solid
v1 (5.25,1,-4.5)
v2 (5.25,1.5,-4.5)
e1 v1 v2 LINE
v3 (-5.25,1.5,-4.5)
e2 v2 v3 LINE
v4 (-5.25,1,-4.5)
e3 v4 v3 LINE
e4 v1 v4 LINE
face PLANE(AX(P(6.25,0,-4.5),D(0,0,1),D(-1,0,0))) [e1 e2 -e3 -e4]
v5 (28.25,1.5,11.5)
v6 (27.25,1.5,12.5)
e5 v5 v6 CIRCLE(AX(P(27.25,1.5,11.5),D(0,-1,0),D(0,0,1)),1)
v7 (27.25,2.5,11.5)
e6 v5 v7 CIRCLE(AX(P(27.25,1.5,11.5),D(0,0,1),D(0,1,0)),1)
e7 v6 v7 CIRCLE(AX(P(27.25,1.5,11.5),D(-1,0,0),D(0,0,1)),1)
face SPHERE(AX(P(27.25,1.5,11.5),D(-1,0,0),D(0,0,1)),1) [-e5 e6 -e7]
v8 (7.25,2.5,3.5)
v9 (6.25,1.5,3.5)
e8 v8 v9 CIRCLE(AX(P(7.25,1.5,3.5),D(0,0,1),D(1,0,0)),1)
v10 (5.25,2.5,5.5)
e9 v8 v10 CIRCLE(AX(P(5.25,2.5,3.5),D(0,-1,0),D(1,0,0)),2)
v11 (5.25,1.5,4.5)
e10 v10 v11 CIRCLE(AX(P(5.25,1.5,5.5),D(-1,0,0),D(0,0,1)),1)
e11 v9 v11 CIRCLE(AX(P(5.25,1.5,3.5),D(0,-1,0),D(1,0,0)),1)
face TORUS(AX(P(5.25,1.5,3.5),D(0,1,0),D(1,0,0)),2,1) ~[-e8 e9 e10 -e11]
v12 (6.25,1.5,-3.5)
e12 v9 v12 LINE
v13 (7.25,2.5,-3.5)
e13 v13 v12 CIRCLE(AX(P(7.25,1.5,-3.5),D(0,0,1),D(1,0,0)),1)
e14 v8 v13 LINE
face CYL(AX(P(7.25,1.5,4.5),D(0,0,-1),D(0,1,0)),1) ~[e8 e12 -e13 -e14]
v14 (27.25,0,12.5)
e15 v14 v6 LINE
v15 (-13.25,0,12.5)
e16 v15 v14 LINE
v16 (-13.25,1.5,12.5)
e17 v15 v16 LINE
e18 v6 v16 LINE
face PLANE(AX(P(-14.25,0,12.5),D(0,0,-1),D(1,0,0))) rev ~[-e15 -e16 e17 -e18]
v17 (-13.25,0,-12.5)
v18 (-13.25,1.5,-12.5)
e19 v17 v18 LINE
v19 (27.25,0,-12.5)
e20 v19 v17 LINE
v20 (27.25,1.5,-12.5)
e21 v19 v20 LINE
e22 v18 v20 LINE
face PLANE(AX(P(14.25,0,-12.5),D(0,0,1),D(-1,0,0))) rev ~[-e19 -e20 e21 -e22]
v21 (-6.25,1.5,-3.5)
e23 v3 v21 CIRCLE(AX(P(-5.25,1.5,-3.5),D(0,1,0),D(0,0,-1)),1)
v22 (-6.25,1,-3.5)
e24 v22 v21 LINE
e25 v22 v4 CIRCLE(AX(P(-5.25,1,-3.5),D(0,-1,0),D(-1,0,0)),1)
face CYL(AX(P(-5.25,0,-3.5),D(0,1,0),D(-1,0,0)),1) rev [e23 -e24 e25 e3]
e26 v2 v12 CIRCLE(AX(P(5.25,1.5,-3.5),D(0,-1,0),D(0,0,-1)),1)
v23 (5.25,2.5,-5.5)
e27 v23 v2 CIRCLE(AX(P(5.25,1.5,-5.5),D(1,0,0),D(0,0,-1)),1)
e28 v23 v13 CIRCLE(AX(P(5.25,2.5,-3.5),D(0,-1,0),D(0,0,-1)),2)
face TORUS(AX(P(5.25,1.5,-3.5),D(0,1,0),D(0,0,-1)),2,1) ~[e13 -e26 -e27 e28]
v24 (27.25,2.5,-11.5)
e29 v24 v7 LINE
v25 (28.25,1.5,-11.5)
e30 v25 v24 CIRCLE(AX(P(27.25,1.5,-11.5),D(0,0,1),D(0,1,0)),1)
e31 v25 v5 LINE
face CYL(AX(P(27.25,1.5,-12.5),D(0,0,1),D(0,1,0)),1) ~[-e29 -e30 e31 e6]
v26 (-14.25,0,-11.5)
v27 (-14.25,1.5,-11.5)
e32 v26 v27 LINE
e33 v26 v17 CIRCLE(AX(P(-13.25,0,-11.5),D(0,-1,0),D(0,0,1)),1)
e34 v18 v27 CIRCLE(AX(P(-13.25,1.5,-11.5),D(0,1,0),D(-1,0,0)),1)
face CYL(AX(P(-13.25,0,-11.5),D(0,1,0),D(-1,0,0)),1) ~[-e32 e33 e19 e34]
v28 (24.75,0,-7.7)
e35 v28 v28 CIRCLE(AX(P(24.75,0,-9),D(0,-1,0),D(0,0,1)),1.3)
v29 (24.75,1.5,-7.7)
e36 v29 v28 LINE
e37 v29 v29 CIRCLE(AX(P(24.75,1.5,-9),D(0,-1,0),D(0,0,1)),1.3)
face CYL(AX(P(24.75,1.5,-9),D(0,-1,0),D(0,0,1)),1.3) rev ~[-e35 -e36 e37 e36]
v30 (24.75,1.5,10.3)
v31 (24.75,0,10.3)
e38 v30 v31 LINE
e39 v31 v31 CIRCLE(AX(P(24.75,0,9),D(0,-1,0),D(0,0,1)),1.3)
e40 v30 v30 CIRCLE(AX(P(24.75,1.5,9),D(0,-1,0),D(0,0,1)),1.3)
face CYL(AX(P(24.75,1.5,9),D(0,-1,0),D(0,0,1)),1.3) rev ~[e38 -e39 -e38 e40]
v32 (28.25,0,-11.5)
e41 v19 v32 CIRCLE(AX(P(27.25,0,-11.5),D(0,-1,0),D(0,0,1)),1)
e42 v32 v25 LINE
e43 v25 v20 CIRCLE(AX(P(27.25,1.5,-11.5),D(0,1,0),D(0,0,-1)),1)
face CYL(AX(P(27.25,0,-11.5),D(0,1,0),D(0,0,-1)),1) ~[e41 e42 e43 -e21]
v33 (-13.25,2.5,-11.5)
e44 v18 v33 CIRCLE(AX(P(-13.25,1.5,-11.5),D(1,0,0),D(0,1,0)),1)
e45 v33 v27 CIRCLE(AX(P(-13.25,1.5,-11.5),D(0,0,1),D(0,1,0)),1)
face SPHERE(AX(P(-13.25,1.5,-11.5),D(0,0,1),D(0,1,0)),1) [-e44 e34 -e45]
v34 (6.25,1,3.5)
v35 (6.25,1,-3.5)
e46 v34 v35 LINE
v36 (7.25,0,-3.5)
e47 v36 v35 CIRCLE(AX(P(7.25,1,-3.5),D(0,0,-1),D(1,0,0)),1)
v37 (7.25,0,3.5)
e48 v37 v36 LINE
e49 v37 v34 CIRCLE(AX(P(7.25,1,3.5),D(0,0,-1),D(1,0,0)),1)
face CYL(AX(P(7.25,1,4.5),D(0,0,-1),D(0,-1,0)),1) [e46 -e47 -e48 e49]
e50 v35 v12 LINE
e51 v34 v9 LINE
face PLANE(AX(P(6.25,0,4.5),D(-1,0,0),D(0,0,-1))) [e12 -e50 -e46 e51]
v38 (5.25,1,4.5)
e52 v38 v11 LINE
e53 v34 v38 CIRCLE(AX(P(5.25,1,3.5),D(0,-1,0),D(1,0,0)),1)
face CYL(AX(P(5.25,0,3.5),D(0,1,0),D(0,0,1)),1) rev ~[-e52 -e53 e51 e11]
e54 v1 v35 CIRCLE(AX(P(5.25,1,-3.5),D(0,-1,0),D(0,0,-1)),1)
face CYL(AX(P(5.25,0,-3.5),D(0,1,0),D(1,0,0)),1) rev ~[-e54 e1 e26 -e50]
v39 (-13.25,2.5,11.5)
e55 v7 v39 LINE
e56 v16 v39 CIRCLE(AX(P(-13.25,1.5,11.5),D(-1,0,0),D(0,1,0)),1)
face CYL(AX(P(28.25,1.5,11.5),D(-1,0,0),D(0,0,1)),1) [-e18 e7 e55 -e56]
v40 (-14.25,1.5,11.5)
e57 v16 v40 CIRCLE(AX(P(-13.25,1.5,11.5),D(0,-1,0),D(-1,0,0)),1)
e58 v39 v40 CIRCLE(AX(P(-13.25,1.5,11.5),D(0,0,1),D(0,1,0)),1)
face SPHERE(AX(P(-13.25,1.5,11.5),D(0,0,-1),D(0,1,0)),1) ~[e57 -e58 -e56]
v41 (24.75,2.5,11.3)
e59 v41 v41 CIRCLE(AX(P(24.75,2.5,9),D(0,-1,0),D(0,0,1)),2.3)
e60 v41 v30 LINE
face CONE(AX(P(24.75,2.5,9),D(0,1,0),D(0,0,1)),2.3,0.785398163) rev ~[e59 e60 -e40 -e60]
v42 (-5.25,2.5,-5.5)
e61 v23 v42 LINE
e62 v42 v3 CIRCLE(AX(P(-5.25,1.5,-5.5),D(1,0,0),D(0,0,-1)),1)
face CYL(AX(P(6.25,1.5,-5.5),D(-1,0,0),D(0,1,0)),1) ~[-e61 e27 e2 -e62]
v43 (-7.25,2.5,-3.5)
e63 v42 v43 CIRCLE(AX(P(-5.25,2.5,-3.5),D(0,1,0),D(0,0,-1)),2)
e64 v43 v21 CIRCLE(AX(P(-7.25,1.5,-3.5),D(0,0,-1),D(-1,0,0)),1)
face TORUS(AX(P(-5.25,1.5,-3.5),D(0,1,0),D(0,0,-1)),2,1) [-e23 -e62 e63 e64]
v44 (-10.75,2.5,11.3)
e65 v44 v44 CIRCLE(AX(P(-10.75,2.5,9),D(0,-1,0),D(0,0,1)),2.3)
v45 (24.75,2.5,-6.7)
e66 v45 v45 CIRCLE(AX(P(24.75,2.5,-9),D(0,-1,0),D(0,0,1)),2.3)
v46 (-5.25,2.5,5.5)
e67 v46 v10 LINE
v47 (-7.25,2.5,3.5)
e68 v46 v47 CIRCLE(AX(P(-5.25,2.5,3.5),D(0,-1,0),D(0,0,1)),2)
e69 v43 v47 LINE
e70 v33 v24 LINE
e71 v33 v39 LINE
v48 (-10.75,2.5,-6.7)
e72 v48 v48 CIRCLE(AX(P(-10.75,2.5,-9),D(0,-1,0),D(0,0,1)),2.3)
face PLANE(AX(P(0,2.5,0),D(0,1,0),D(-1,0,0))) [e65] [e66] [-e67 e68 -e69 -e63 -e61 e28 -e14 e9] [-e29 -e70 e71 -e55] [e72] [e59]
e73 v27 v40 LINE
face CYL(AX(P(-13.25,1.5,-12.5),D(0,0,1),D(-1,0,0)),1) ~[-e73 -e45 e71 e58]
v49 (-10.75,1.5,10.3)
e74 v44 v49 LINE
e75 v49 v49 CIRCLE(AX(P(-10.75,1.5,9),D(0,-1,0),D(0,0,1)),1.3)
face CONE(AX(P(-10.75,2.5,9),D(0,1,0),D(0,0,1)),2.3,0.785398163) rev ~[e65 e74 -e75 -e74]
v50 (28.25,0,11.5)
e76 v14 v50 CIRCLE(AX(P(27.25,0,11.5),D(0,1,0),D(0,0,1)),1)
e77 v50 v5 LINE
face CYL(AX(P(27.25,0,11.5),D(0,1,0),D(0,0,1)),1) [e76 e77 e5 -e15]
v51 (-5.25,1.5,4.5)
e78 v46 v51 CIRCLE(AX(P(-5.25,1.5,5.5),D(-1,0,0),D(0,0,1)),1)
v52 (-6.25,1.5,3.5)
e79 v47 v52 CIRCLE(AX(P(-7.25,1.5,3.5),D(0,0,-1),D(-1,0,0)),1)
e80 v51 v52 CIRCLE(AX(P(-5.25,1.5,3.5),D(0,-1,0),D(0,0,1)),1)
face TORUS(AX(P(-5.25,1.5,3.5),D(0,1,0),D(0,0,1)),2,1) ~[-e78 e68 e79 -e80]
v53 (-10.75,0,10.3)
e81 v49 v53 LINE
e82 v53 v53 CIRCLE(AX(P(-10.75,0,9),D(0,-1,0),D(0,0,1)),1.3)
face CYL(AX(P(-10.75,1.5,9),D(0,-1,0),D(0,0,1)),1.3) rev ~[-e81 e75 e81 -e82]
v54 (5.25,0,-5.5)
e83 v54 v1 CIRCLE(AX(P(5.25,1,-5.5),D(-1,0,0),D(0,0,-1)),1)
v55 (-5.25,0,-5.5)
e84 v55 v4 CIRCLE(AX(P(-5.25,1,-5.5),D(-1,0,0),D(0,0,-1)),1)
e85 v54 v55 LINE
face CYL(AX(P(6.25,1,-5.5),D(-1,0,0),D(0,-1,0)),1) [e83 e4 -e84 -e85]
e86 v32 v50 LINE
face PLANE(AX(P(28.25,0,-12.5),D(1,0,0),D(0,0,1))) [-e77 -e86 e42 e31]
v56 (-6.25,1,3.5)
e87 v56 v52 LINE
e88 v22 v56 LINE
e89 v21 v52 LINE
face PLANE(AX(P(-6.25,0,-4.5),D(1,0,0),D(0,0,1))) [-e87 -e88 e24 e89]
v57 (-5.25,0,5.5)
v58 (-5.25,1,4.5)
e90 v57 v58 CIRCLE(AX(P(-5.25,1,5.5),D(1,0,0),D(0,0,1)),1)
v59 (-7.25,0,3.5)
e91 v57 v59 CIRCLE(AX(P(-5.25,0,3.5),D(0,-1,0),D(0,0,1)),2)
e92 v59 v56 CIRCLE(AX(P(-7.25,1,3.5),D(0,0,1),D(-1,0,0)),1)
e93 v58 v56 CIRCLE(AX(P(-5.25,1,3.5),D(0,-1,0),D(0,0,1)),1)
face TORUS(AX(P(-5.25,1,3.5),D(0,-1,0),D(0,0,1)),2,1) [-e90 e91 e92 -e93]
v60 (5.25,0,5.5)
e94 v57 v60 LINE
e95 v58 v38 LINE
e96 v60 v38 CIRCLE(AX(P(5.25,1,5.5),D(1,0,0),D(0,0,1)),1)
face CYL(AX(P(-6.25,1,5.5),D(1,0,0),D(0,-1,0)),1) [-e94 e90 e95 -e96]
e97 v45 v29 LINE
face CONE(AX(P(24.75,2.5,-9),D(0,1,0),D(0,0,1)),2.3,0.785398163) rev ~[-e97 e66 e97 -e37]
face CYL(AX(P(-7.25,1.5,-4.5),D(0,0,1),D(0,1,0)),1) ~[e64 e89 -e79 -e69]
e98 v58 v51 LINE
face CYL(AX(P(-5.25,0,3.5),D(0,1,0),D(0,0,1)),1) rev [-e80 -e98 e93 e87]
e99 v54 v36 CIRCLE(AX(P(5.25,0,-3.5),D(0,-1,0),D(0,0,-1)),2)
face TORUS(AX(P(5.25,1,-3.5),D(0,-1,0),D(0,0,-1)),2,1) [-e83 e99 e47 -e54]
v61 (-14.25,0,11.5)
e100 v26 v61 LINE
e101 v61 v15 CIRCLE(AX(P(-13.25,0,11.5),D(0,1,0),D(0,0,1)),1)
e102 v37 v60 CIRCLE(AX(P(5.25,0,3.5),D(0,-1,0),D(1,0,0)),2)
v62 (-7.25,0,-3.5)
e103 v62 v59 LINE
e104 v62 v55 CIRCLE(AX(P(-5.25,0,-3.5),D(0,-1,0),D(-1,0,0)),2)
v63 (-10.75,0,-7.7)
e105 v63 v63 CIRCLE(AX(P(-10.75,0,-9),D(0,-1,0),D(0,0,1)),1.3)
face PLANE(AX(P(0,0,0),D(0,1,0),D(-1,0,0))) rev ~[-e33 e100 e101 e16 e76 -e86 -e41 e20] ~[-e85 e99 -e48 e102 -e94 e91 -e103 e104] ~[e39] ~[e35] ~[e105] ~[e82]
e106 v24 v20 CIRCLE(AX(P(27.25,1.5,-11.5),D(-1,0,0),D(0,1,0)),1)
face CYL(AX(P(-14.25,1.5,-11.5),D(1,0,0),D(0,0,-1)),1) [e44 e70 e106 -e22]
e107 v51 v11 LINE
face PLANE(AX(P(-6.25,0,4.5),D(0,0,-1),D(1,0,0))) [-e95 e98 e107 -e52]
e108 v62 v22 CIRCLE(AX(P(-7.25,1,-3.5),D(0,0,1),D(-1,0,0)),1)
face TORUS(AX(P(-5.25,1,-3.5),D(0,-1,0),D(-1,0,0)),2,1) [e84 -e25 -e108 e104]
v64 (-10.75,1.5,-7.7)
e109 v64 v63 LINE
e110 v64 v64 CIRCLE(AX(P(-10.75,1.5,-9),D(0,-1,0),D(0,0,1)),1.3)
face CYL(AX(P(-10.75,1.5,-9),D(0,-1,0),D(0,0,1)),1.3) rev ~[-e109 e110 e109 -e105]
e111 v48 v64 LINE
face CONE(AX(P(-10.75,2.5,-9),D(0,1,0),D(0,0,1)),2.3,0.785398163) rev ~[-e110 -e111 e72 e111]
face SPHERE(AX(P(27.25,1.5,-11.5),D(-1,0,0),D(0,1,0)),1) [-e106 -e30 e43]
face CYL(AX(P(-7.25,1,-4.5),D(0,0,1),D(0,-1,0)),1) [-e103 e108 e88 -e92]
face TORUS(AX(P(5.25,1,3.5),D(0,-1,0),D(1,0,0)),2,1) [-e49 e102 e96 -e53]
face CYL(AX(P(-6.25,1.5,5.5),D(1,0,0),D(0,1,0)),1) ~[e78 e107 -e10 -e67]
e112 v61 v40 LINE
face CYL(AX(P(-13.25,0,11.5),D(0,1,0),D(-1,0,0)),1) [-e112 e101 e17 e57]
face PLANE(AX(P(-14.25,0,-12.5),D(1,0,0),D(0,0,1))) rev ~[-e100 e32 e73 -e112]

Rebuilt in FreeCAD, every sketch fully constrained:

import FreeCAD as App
import Part
import Sketcher
from FreeCAD import Vector
Q = App.Units.Quantity


def edges_at(feature, points):
    """Names of the edges that pass closest to the given points."""
    edges = feature.Shape.Edges
    near = lambda p: min(range(len(edges)), key=lambda i: edges[i].distToShape(Part.Vertex(*p))[0])
    return sorted({f"Edge{near(p) + 1}" for p in points})

doc = App.newDocument("Part")
body = doc.addObject("PartDesign::Body", "Body")

sketch1 = body.newObject("Sketcher::SketchObject", "Sketch")
sketch1.AttachmentSupport = (doc.getObject("XZ_Plane"), [""])
sketch1.MapMode = "FlatFace"
sketch1.addGeometry(Part.LineSegment(Vector(-14, -12, 0), Vector(-14, 12, 0)), False)
sketch1.addGeometry(Part.LineSegment(Vector(-14, 12, 0), Vector(28, 12, 0)), False)
sketch1.addGeometry(Part.LineSegment(Vector(28, 12, 0), Vector(28, -12, 0)), False)
sketch1.addGeometry(Part.LineSegment(Vector(28, -12, 0), Vector(-14, -12, 0)), False)
sketch1.addGeometry(Part.LineSegment(Vector(6, 4, 0), Vector(-6, 4, 0)), False)
sketch1.addGeometry(Part.LineSegment(Vector(-6, 4, 0), Vector(-6, -4, 0)), False)
sketch1.addGeometry(Part.LineSegment(Vector(-6, -4, 0), Vector(6, -4, 0)), False)
sketch1.addGeometry(Part.LineSegment(Vector(6, -4, 0), Vector(6, 4, 0)), False)
sketch1.addConstraint(Sketcher.Constraint("Coincident", 0, 2, 1, 1))
sketch1.addConstraint(Sketcher.Constraint("Coincident", 1, 2, 2, 1))
sketch1.addConstraint(Sketcher.Constraint("Coincident", 2, 2, 3, 1))
sketch1.addConstraint(Sketcher.Constraint("Coincident", 3, 2, 0, 1))
sketch1.addConstraint(Sketcher.Constraint("Coincident", 4, 2, 5, 1))
sketch1.addConstraint(Sketcher.Constraint("Coincident", 5, 2, 6, 1))
sketch1.addConstraint(Sketcher.Constraint("Coincident", 6, 2, 7, 1))
sketch1.addConstraint(Sketcher.Constraint("Coincident", 7, 2, 4, 1))
sketch1.addConstraint(Sketcher.Constraint("Vertical", 0))
sketch1.addConstraint(Sketcher.Constraint("Horizontal", 1))
sketch1.addConstraint(Sketcher.Constraint("Vertical", 2))
sketch1.addConstraint(Sketcher.Constraint("Horizontal", 3))
sketch1.addConstraint(Sketcher.Constraint("Horizontal", 4))
sketch1.addConstraint(Sketcher.Constraint("Vertical", 5))
sketch1.addConstraint(Sketcher.Constraint("Horizontal", 6))
sketch1.addConstraint(Sketcher.Constraint("Vertical", 7))
sketch1.addConstraint(Sketcher.Constraint("Symmetric", 4, 2, 6, 2, -1, 1))
sketch1.addConstraint(Sketcher.Constraint("DistanceY", 0, 1, 0, 2, Q("25 mm")))
sketch1.addConstraint(Sketcher.Constraint("DistanceX", 1, 1, 1, 2, Q("42.5 mm")))
sketch1.addConstraint(Sketcher.Constraint("DistanceY", 5, 2, 5, 1, Q("9 mm")))
sketch1.addConstraint(Sketcher.Constraint("DistanceX", 4, 2, 4, 1, Q("12.5 mm")))
sketch1.addConstraint(Sketcher.Constraint("DistanceX", 0, 2, 4, 2, Q("8 mm")))
sketch1.addConstraint(Sketcher.Constraint("DistanceY", 4, 2, 0, 2, Q("8 mm")))
pad1 = body.newObject("PartDesign::Pad", "Pad")
pad1.Profile = sketch1
pad1.Length = 2.5
pad1.Reversed = True

sketch2 = body.newObject("Sketcher::SketchObject", "Sketch001")
sketch2.AttachmentSupport = (doc.getObject("XZ_Plane"), [""])
sketch2.MapMode = "FlatFace"
sketch2.AttachmentOffset = App.Placement(Vector(0, 0, -2.5), App.Rotation())
sketch2.addGeometry(Part.Circle(Vector(-10.8, -9, 0), Vector(0, 0, 1), 1.3), False)
sketch2.addGeometry(Part.Circle(Vector(24.8, -9, 0), Vector(0, 0, 1), 1.3), False)
sketch2.addGeometry(Part.Circle(Vector(24.8, 9, 0), Vector(0, 0, 1), 1.3), False)
sketch2.addGeometry(Part.Circle(Vector(-10.8, 9, 0), Vector(0, 0, 1), 1.3), False)
sketch2.addConstraint(Sketcher.Constraint("Equal", 0, 1))
sketch2.addConstraint(Sketcher.Constraint("Equal", 1, 2))
sketch2.addConstraint(Sketcher.Constraint("Equal", 2, 3))
sketch2.addConstraint(Sketcher.Constraint("Symmetric", 1, 3, 2, 3, -1))
sketch2.addConstraint(Sketcher.Constraint("Symmetric", 0, 3, 3, 3, -1))
sketch2.addConstraint(Sketcher.Constraint("Horizontal", 0, 3, 1, 3))
sketch2.addConstraint(Sketcher.Constraint("Diameter", 0, Q("2.6 mm")))
sketch2.addConstraint(Sketcher.Constraint("DistanceY", 0, 3, -1, 1, Q("9 mm")))
sketch2.addConstraint(Sketcher.Constraint("DistanceX", 0, 3, 1, 3, Q("35.5 mm")))
sketch2.addConstraint(Sketcher.Constraint("DistanceX", 0, 3, -1, 1, Q("10.75 mm")))
doc.recompute()
hole = body.newObject("PartDesign::Hole", "Hole")
hole.Profile = sketch2
hole.ThreadType = "None"
hole.Diameter = 2.6
hole.DepthType = "ThroughAll"
hole.HoleCutType = "Countersink"
hole.HoleCutDiameter = 4.6
hole.HoleCutCountersinkAngle = 90
hole.Reversed = True
doc.recompute()

fillet = body.newObject("PartDesign::Fillet", "Fillet")
fillet.Base = (hole, edges_at(hole, [
    (-14.25, 2.5, 0),
    (7, 2.5, -12.5),
    (-14.25, 1.25, -12.5),
    (7, 2.5, 12.5),
    (-14.25, 1.25, 12.5),
    (-6.25, 2.5, 0),
    (-6.25, 1.25, -4.5),
    (0, 2.5, -4.5),
    (-6.25, 0, 0),
    (0, 0, -4.5),
    (6.25, 1.25, 4.5),
    (6.25, 2.5, 0),
    (6.25, 0, 0),
    (6.25, 1.25, -4.5),
    (-6.25, 1.25, 4.5),
    (0, 2.5, 4.5),
    (0, 0, 4.5),
    (28.25, 1.25, 12.5),
    (28.25, 2.5, 0),
    (28.25, 1.25, -12.5),
]))
fillet.Radius = 1

doc.recompute()
